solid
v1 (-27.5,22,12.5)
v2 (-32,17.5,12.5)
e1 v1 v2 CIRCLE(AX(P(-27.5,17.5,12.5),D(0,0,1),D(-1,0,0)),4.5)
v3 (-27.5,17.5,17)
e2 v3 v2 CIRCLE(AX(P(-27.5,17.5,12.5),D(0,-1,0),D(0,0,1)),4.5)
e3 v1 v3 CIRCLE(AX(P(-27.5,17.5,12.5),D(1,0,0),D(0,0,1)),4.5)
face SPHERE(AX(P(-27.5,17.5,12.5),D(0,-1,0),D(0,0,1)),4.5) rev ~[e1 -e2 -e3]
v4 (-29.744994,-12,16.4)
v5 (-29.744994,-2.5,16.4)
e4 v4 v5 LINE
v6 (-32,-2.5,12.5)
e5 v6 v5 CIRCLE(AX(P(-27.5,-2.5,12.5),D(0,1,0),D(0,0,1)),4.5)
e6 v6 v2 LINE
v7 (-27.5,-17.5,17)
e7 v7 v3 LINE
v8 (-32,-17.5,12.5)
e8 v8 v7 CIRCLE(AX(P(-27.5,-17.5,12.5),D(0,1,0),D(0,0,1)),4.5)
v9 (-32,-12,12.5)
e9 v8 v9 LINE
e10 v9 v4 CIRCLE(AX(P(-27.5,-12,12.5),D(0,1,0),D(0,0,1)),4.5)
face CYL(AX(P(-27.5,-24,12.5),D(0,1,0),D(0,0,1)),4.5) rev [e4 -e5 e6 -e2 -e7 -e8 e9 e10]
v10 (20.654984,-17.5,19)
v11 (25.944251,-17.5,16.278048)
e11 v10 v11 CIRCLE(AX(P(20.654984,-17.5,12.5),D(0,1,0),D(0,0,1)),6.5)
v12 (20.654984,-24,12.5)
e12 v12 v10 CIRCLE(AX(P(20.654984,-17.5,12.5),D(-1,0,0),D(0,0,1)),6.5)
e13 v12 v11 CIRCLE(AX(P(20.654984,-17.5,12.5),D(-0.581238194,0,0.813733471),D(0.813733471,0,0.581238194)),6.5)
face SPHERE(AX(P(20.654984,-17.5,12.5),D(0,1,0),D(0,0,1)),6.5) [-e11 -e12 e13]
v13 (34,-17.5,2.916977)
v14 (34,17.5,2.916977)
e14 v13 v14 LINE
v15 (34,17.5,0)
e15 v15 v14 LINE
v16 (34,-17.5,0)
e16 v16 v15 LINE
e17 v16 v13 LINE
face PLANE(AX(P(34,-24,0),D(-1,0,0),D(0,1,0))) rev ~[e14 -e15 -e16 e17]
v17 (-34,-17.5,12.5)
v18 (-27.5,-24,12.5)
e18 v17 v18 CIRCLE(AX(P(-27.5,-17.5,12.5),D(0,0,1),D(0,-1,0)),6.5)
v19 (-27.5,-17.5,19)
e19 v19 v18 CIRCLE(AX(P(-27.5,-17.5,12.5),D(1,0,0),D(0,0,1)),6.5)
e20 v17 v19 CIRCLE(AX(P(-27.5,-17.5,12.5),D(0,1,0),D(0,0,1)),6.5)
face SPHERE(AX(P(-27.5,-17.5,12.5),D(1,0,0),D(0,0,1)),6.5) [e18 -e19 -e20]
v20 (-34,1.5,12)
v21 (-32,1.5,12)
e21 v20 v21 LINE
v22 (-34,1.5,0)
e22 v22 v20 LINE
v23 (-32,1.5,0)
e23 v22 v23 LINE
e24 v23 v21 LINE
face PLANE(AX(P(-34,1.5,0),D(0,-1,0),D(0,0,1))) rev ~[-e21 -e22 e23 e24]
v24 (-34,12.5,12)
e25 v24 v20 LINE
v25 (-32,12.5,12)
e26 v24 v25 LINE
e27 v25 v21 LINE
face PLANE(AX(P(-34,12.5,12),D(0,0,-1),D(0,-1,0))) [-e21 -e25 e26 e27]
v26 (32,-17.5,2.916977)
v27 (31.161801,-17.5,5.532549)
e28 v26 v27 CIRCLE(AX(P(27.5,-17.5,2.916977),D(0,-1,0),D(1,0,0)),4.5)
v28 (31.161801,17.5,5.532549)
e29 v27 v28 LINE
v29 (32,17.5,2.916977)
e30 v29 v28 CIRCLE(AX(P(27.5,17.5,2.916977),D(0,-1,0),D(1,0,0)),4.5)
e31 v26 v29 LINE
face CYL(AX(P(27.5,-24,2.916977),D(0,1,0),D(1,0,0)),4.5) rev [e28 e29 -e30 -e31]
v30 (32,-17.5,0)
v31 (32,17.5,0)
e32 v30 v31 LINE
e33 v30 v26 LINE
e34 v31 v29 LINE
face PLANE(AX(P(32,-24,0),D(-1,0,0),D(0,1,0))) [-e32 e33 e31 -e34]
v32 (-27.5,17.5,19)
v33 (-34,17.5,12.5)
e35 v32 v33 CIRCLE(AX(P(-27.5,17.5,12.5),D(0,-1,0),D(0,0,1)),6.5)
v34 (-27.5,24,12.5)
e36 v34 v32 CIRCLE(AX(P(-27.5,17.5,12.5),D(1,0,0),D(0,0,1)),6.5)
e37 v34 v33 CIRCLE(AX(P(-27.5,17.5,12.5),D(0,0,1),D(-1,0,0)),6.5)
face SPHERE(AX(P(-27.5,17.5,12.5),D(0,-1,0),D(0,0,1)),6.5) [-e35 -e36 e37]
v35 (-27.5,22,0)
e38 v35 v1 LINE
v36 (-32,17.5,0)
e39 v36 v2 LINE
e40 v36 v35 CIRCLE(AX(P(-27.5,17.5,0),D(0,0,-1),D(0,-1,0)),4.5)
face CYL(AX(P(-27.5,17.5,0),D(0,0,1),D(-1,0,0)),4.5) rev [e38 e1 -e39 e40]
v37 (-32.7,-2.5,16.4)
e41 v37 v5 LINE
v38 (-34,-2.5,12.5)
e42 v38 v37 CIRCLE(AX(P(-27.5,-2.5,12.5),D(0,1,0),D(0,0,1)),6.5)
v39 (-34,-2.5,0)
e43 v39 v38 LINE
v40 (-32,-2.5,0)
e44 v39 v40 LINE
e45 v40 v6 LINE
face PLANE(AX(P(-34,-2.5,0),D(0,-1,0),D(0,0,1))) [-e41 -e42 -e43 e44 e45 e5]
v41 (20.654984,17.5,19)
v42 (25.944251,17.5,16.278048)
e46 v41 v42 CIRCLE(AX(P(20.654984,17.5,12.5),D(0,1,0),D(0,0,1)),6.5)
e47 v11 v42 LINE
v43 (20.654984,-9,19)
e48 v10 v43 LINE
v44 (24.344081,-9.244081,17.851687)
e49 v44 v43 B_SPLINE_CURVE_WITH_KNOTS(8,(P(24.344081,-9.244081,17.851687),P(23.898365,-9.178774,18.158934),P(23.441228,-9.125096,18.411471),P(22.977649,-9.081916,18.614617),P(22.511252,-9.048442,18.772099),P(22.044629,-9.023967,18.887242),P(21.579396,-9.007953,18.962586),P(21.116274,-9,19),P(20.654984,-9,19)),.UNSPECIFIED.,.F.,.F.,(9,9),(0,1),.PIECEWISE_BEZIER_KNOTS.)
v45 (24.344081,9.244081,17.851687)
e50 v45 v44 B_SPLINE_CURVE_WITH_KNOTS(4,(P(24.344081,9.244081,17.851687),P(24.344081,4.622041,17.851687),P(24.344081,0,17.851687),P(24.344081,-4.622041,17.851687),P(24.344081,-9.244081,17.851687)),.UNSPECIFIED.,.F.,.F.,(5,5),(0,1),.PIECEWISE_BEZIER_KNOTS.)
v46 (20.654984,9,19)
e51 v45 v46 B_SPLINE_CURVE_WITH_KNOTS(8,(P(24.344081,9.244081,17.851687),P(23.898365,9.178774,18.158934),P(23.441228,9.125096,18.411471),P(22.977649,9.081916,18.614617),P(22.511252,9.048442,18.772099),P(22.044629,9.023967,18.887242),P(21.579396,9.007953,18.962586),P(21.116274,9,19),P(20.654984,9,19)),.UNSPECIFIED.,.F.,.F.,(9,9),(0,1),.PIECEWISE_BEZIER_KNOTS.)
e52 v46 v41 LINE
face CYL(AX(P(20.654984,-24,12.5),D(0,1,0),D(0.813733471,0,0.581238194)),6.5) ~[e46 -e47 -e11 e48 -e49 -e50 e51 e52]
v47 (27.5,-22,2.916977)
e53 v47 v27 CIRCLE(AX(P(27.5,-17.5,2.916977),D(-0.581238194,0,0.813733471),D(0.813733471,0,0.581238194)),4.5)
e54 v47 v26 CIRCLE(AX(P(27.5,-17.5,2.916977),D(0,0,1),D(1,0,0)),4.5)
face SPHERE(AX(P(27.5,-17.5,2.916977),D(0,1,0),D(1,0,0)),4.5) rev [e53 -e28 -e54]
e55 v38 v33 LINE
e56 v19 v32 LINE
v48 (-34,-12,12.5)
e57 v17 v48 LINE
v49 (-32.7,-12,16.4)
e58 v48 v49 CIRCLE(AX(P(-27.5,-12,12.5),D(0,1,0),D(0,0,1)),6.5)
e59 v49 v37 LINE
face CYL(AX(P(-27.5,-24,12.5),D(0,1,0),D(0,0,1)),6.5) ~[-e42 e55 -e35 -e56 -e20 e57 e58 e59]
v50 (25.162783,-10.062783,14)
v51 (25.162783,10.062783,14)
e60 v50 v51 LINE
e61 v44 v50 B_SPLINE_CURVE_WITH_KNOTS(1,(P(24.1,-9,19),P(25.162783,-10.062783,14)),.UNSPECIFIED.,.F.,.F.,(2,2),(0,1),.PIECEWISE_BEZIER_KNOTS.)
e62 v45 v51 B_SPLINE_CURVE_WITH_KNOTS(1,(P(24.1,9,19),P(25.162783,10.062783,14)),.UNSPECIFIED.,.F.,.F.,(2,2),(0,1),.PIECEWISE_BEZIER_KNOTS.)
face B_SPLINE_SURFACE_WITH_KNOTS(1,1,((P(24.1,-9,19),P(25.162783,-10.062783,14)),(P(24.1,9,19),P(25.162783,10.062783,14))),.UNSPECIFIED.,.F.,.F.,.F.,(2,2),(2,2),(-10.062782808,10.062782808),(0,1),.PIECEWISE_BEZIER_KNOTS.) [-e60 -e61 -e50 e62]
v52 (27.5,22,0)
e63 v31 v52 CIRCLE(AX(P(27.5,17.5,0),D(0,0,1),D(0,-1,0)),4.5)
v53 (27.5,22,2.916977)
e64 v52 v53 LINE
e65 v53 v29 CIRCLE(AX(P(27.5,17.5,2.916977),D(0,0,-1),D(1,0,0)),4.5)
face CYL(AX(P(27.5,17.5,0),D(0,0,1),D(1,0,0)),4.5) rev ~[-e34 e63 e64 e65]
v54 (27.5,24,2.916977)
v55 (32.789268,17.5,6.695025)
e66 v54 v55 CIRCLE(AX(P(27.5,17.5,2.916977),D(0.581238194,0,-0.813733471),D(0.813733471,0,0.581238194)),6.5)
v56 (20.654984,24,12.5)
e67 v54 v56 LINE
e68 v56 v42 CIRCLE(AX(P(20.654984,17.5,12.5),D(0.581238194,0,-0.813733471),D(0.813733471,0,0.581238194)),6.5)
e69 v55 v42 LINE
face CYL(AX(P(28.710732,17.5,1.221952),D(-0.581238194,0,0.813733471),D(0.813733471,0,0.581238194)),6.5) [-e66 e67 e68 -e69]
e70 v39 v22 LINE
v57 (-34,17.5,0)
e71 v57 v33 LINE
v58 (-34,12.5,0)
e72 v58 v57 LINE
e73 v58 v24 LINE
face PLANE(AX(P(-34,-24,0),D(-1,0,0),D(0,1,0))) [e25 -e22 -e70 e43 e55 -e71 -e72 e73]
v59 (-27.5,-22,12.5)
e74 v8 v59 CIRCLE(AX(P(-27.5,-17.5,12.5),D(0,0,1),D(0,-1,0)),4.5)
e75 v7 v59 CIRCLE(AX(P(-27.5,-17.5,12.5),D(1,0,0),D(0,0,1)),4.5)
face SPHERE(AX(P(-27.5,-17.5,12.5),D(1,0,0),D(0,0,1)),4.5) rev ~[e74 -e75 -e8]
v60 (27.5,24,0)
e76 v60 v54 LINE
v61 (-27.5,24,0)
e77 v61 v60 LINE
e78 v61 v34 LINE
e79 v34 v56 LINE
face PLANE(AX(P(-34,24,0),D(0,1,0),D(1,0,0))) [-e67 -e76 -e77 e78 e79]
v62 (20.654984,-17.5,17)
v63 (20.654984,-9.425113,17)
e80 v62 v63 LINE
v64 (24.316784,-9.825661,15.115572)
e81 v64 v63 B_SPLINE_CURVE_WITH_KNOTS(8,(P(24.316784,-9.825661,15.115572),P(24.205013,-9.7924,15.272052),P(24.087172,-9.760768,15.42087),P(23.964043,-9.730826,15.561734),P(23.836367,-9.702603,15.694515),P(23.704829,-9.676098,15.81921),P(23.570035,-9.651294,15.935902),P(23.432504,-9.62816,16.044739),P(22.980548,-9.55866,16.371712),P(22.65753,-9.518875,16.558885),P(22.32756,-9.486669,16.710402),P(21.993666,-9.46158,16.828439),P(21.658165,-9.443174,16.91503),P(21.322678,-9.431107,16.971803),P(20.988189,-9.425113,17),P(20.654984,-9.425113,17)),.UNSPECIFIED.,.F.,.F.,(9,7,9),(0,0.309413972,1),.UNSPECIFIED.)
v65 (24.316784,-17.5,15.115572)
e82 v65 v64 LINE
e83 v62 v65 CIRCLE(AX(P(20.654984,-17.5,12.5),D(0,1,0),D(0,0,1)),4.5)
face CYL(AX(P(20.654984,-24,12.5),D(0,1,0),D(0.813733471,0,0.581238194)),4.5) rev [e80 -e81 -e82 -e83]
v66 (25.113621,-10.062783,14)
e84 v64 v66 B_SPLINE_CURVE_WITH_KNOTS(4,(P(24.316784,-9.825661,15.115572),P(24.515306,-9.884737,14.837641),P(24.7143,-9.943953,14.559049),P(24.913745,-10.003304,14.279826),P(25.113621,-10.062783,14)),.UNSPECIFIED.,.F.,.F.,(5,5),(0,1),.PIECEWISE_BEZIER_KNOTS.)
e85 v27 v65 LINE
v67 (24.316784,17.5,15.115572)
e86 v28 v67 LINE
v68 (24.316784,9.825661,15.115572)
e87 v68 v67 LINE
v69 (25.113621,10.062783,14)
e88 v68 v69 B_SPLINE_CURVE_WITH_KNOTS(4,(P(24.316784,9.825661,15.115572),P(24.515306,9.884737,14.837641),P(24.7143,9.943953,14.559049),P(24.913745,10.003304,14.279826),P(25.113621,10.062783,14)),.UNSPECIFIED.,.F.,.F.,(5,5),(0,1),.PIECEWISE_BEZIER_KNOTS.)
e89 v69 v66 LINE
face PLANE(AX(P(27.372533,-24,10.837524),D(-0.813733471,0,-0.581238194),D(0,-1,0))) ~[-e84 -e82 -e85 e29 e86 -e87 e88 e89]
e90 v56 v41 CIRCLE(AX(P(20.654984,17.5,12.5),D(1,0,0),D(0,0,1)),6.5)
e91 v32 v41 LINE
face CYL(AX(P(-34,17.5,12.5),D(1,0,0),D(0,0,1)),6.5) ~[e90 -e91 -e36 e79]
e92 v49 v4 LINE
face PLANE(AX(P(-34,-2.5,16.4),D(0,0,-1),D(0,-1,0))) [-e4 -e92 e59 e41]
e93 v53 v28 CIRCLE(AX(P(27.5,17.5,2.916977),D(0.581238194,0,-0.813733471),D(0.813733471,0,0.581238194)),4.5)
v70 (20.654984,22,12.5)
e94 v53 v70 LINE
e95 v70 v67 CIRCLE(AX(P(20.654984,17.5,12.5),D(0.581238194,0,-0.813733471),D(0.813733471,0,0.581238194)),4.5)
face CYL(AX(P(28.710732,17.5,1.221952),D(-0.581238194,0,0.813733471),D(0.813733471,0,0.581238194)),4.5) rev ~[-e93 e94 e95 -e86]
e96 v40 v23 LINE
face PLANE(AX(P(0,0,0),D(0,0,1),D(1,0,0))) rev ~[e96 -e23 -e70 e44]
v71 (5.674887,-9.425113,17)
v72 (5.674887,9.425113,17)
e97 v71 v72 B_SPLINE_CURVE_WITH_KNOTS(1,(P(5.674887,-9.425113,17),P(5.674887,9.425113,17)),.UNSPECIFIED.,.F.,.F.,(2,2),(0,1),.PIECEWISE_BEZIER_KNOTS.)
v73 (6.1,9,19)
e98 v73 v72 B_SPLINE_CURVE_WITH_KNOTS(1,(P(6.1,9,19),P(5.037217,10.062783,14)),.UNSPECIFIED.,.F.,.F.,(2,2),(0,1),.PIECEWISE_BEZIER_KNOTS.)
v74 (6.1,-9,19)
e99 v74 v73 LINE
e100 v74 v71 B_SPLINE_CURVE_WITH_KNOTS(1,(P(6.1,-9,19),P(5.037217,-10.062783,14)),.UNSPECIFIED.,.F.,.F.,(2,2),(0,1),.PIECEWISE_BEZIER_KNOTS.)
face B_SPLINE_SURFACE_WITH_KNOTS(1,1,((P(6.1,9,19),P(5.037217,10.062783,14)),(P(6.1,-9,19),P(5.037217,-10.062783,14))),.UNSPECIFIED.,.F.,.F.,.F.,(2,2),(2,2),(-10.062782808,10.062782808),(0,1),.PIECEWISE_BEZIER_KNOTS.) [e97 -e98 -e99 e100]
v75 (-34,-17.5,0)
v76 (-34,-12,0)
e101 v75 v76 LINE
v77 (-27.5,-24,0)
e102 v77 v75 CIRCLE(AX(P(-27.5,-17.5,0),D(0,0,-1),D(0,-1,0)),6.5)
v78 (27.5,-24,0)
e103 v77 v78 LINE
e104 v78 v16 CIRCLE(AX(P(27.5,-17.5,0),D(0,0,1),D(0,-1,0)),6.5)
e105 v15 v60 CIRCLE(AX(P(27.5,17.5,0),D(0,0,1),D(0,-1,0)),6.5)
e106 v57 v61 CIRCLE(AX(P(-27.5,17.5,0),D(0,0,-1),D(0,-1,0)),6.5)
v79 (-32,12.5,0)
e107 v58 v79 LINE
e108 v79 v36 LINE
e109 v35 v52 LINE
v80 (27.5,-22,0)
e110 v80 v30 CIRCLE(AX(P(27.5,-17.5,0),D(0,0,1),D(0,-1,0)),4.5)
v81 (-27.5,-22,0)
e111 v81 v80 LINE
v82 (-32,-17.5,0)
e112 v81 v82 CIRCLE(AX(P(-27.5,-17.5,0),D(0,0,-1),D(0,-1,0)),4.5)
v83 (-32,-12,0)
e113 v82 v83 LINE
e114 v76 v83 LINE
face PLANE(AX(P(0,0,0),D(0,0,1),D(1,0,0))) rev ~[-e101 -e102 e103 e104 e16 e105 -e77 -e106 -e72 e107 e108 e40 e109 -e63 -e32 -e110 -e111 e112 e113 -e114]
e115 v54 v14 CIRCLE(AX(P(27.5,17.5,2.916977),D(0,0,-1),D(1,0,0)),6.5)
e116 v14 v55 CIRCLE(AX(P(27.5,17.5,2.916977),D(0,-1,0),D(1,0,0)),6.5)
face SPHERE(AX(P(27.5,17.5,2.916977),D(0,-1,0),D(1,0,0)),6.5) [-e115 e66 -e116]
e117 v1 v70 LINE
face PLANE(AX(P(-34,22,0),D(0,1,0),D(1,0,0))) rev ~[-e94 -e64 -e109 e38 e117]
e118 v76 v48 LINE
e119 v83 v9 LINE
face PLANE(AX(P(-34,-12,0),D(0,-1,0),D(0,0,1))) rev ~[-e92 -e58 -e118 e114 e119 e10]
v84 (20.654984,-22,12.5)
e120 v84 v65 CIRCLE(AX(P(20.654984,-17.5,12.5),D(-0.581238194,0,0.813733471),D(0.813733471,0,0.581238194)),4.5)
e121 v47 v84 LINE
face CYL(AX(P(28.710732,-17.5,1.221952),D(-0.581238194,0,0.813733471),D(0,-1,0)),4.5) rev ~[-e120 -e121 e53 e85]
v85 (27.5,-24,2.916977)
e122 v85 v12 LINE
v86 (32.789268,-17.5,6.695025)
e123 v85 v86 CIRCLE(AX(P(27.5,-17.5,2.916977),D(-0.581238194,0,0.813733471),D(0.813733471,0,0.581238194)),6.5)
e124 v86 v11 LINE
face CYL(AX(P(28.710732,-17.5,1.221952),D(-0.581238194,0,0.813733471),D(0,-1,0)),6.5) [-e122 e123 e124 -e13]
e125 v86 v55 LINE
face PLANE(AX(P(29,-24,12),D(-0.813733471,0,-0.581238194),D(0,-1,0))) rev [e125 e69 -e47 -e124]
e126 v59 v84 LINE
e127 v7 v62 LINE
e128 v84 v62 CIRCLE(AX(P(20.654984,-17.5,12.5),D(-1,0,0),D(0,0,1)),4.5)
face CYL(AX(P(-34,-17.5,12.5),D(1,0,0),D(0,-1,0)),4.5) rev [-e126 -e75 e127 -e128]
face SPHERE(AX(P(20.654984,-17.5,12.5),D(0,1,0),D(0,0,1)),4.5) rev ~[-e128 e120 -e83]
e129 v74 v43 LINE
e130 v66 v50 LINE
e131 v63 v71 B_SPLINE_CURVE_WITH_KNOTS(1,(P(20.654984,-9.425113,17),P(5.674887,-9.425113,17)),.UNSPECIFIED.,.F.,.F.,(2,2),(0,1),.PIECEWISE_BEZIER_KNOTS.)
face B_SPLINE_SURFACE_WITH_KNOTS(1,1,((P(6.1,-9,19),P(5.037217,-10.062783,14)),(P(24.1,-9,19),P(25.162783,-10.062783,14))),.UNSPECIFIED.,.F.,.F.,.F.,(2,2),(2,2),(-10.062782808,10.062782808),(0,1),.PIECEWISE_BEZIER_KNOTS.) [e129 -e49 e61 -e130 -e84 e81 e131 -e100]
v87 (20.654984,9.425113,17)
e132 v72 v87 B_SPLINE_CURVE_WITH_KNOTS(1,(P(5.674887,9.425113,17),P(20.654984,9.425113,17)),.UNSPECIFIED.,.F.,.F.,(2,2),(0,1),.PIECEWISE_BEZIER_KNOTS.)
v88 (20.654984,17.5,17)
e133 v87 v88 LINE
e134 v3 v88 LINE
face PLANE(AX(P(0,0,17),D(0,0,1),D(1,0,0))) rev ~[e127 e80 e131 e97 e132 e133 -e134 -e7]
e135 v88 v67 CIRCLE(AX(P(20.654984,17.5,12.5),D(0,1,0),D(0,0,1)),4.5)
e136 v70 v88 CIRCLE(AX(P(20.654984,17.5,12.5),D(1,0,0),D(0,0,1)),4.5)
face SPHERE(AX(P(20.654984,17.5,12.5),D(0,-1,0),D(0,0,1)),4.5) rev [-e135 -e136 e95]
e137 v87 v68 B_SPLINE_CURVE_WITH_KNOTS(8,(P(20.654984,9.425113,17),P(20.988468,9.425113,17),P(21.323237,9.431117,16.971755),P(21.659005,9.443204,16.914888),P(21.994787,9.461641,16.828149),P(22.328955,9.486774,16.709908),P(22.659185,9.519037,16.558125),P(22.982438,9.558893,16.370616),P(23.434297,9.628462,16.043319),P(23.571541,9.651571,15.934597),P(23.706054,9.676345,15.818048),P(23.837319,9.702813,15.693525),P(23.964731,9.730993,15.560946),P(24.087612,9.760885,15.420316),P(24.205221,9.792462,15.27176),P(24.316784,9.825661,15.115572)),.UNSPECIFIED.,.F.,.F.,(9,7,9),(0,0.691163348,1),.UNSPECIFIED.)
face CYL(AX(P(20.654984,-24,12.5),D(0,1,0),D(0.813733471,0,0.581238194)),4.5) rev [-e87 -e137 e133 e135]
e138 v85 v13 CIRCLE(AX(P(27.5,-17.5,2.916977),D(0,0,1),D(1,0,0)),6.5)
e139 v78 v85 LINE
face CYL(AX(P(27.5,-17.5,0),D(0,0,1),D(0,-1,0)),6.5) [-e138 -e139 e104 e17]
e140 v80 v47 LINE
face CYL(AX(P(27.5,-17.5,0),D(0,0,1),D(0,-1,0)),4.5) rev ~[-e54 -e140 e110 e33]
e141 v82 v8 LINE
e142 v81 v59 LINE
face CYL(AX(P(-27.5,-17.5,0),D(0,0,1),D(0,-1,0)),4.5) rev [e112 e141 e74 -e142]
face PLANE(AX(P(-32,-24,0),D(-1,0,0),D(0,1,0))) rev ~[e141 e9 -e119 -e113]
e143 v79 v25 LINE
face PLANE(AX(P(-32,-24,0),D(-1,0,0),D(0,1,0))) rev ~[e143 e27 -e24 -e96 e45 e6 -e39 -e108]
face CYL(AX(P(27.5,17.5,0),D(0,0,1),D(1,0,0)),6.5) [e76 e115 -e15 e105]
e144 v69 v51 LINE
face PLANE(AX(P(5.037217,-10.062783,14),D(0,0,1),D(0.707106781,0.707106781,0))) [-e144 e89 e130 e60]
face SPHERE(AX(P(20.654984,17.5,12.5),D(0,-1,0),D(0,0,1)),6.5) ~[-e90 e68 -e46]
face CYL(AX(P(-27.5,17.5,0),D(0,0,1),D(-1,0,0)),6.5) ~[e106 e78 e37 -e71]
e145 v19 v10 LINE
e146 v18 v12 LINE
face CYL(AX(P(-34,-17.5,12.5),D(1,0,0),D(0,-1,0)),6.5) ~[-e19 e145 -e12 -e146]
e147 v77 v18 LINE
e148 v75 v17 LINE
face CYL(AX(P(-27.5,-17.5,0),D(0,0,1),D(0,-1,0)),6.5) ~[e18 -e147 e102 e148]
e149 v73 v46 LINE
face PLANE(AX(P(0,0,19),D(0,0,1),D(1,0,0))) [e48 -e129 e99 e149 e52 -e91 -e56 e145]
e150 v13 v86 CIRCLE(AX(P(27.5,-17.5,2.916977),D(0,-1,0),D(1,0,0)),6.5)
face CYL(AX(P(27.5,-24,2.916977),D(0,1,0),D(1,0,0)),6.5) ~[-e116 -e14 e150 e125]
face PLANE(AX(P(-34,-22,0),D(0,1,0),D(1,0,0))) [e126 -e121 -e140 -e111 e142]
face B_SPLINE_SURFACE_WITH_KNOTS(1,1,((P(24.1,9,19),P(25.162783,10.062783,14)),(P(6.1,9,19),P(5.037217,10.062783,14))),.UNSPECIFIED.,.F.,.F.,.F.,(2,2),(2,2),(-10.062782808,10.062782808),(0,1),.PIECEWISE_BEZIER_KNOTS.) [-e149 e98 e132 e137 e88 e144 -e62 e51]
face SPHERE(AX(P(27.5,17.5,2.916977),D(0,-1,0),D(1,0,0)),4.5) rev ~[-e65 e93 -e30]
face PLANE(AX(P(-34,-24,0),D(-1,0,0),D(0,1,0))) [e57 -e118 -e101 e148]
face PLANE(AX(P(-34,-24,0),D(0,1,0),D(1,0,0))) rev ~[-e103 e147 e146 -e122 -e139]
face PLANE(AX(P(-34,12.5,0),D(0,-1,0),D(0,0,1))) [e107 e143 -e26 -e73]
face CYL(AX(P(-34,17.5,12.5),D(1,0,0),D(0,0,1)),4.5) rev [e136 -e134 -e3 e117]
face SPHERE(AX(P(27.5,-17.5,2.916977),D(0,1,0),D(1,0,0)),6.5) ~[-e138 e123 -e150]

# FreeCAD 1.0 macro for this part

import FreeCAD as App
import Part
import Sketcher

V = App.Vector


def edges_at(feature, points):
    """Names of the edges that pass closest to the given points."""
    edges = feature.Shape.Edges
    near = lambda p: min(range(len(edges)), key=lambda i: edges[i].distToShape(Part.Vertex(*p))[0])
    return sorted({f"Edge{near(p) + 1}" for p in points})


def faces_at(feature, points):
    """Names of the faces that lie closest to the given points."""
    faces = feature.Shape.Faces
    near = lambda p: min(range(len(faces)), key=lambda i: faces[i].distToShape(Part.Vertex(*p))[0])
    return sorted({f"Face{near(p) + 1}" for p in points})


def add_polygon(sketch, points):
    """Adds a closed chain of lines whose ends are joined by coincident constraints."""
    first, n = sketch.GeometryCount, len(points)
    for a, b in zip(points, points[1:] + points[:1]):
        sketch.addGeometry(Part.LineSegment(App.Vector(*a, 0), App.Vector(*b, 0)), False)
    for i in range(n):
        sketch.addConstraint(Sketcher.Constraint("Coincident", first + i, 2, first + (i + 1) % n, 1))

doc = App.newDocument("Part")
body = doc.addObject("PartDesign::Body", "Body")

sketch1 = body.newObject("Sketcher::SketchObject", "Sketch")
sketch1.AttachmentSupport = (doc.getObject("XY_Plane"), [""])
sketch1.MapMode = "FlatFace"
add_polygon(sketch1, [(-34, 24), (-34, -24), (34, -24), (34, 24)])
sketch1.addConstraint(Sketcher.Constraint("Vertical", 0))
sketch1.addConstraint(Sketcher.Constraint("Horizontal", 1))
sketch1.addConstraint(Sketcher.Constraint("Vertical", 2))
sketch1.addConstraint(Sketcher.Constraint("Horizontal", 3))
sketch1.addConstraint(Sketcher.Constraint("Symmetric", 0, 2, 2, 2, -1, 1))
sketch1.addConstraint(Sketcher.Constraint("DistanceX", 1, 1, 1, 2, 68.0))
sketch1.addConstraint(Sketcher.Constraint("DistanceY", 0, 2, 0, 1, 48.0))
pad1 = body.newObject("PartDesign::Pad", "Pad")
pad1.Profile = sketch1
pad1.Length = 19
doc.recompute()

chamfer = body.newObject("PartDesign::Chamfer", "Chamfer")
chamfer.Base = (pad1, edges_at(pad1, [(34, 0, 19)]))
chamfer.ChamferType = "Two distances"
chamfer.Size = 14
chamfer.Size2 = 10
doc.recompute()

fillet = body.newObject("PartDesign::Fillet", "Fillet")
fillet.Base = (chamfer, edges_at(chamfer, [
    (29, -24, 12),
    (24, 0, 19),
    (-5, -24, 19),
    (-34, 0, 19),
    (-5, 24, 19),
    (29, 24, 12),
    (34, 0, 5),
    (34, 24, 2.5),
    (34, -24, 2.5),
    (-34, 24, 9.5),
    (-34, -24, 9.5),
]))
fillet.Radius = 6.5
doc.recompute()

thickness = body.newObject("PartDesign::Thickness", "Thickness")
thickness.Base = (fillet, faces_at(fillet, [(0, 0, 0)]))
thickness.Value = 2
thickness.Reversed = True
thickness.Join = "Arc"

sketch2 = body.newObject("Sketcher::SketchObject", "Sketch001")
sketch2.AttachmentSupport = (doc.getObject("XY_Plane"), [""])
sketch2.MapMode = "FlatFace"
sketch2.AttachmentOffset = App.Placement(V(0, 0, 19), App.Rotation())
add_polygon(sketch2, [(6, 9), (6, -9), (24, -9), (24, 9)])
sketch2.addConstraint(Sketcher.Constraint("Vertical", 0))
sketch2.addConstraint(Sketcher.Constraint("Horizontal", 1))
sketch2.addConstraint(Sketcher.Constraint("Vertical", 2))
sketch2.addConstraint(Sketcher.Constraint("Horizontal", 3))
sketch2.addConstraint(Sketcher.Constraint("Equal", 3, 0))
sketch2.addConstraint(Sketcher.Constraint("DistanceX", 1, 1, 1, 2, 18.0))
sketch2.addConstraint(Sketcher.Constraint("DistanceY", 0, 2, -1, 1, 9.0))
sketch2.addConstraint(Sketcher.Constraint("DistanceX", -1, 1, 0, 2, 6.1))
pocket1 = body.newObject("PartDesign::Pocket", "Pocket")
pocket1.Profile = sketch2
pocket1.Length = 5
pocket1.TaperAngle = 12

sketch3 = body.newObject("Sketcher::SketchObject", "Sketch002")
sketch3.AttachmentSupport = (doc.getObject("YZ_Plane"), [""])
sketch3.MapMode = "FlatFace"
sketch3.AttachmentOffset = App.Placement(V(0, 0, -34), App.Rotation())
add_polygon(sketch3, [(-2, 16), (-2, 0), (-12, 0), (-12, 16)])
add_polygon(sketch3, [(12, 12), (12, 0), (2, 0), (2, 12)])
sketch3.addConstraint(Sketcher.Constraint("Vertical", 0))
sketch3.addConstraint(Sketcher.Constraint("Horizontal", 1))
sketch3.addConstraint(Sketcher.Constraint("Vertical", 2))
sketch3.addConstraint(Sketcher.Constraint("Horizontal", 3))
sketch3.addConstraint(Sketcher.Constraint("Vertical", 4))
sketch3.addConstraint(Sketcher.Constraint("Horizontal", 5))
sketch3.addConstraint(Sketcher.Constraint("Vertical", 6))
sketch3.addConstraint(Sketcher.Constraint("Horizontal", 7))
sketch3.addConstraint(Sketcher.Constraint("PointOnObject", 0, 2, -1))
sketch3.addConstraint(Sketcher.Constraint("PointOnObject", 4, 2, -1))
sketch3.addConstraint(Sketcher.Constraint("DistanceX", 5, 2, 5, 1, 11.0))
sketch3.addConstraint(Sketcher.Constraint("DistanceY", 4, 2, 4, 1, 12.0))
sketch3.addConstraint(Sketcher.Constraint("DistanceX", 1, 2, 1, 1, 9.5))
sketch3.addConstraint(Sketcher.Constraint("DistanceY", 0, 2, 0, 1, 16.4))
sketch3.addConstraint(Sketcher.Constraint("DistanceX", 1, 2, -1, 1, 12.0))
sketch3.addConstraint(Sketcher.Constraint("DistanceX", 0, 2, 4, 2, 15.0))
pocket2 = body.newObject("PartDesign::Pocket", "Pocket001")
pocket2.Profile = sketch3
pocket2.Length = 5
pocket2.Reversed = True

doc.recompute()
